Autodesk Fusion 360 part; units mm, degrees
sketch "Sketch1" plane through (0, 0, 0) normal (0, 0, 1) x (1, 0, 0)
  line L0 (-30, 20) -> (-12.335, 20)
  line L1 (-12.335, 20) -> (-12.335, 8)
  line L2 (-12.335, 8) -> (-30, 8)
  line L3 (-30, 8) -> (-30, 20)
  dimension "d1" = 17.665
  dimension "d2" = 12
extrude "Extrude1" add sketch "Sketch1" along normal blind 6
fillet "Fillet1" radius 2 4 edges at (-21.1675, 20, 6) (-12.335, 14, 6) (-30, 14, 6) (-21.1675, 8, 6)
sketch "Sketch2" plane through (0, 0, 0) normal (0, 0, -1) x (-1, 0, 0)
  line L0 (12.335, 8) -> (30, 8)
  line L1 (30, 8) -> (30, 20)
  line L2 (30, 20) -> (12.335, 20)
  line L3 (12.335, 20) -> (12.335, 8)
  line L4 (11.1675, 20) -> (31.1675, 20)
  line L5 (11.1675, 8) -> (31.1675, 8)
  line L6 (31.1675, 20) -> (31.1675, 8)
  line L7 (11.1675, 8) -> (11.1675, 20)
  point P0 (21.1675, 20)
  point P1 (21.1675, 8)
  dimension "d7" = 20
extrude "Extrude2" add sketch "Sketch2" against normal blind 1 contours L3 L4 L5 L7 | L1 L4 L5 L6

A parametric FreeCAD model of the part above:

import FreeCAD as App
import Part
import Sketcher


def edges_at(feature, points):
    """Names of the edges that pass closest to the given points."""
    edges = feature.Shape.Edges
    near = lambda p: min(range(len(edges)), key=lambda i: edges[i].distToShape(Part.Vertex(*p))[0])
    return sorted({f"Edge{near(p) + 1}" for p in points})

doc = App.newDocument("Part")
params = doc.addObject("Spreadsheet::Sheet", "Params")
for row, (alias, value) in enumerate([
    ("sketch1_height", "12 mm"),
    ("pad1_length", "6 mm"),
    ("fillet_radius", "2 mm"),
    ("sketch2_height", "12 mm"),
    ("pad2_length", "1 mm"),
], start=1):
    params.set(f"A{row}", alias)
    params.set(f"B{row}", "=" + value)
    params.setAlias(f"B{row}", alias)

body = doc.addObject("PartDesign::Body", "Body")

sketch1 = body.newObject("Sketcher::SketchObject", "Sketch")
sketch1.AttachmentSupport = (doc.getObject("XY_Plane"), [""])
sketch1.MapMode = "FlatFace"
sketch1.addGeometry(Part.LineSegment(App.Vector(-12, 20, 0), App.Vector(-30, 20, 0)), False)
sketch1.addGeometry(Part.LineSegment(App.Vector(-30, 20, 0), App.Vector(-30, 8, 0)), False)
sketch1.addGeometry(Part.LineSegment(App.Vector(-30, 8, 0), App.Vector(-12, 8, 0)), False)
sketch1.addGeometry(Part.LineSegment(App.Vector(-12, 8, 0), App.Vector(-12, 20, 0)), False)
sketch1.addConstraint(Sketcher.Constraint("Coincident", 0, 2, 1, 1))
sketch1.addConstraint(Sketcher.Constraint("Coincident", 1, 2, 2, 1))
sketch1.addConstraint(Sketcher.Constraint("Coincident", 2, 2, 3, 1))
sketch1.addConstraint(Sketcher.Constraint("Coincident", 3, 2, 0, 1))
sketch1.addConstraint(Sketcher.Constraint("Horizontal", 0))
sketch1.addConstraint(Sketcher.Constraint("Vertical", 1))
sketch1.addConstraint(Sketcher.Constraint("Horizontal", 2))
sketch1.addConstraint(Sketcher.Constraint("Vertical", 3))
sketch1.addConstraint(Sketcher.Constraint("DistanceY", 1, 2, 1, 1, 12.0))
sketch1.addConstraint(Sketcher.Constraint("DistanceX", 0, 2, 0, 1, 17.665))
sketch1.addConstraint(Sketcher.Constraint("DistanceX", 0, 2, -1, 1, 30.0))
sketch1.addConstraint(Sketcher.Constraint("DistanceY", -1, 1, 0, 2, 20.0))
sketch1.setExpression("Constraints[8]", "Params.sketch1_height")
pad1 = body.newObject("PartDesign::Pad", "Pad")
pad1.Profile = sketch1
pad1.setExpression("Length", "Params.pad1_length")
doc.recompute()

fillet = body.newObject("PartDesign::Fillet", "Fillet")
fillet.Base = (pad1, edges_at(pad1, [
    (-21.168, 20, 6),
    (-12.335, 14, 6),
    (-30, 14, 6),
    (-21.168, 8, 6),
]))
fillet.setExpression("Radius", "Params.fillet_radius")

sketch2 = body.newObject("Sketcher::SketchObject", "Sketch001")
sketch2.AttachmentSupport = (doc.getObject("XY_Plane"), [""])
sketch2.MapMode = "FlatFace"
sketch2.addGeometry(Part.LineSegment(App.Vector(-11.2, 8, 0), App.Vector(-12.3, 8, 0)), False)
sketch2.addGeometry(Part.LineSegment(App.Vector(-12.3, 8, 0), App.Vector(-12.3, 20, 0)), False)
sketch2.addGeometry(Part.LineSegment(App.Vector(-12.3, 20, 0), App.Vector(-11.2, 20, 0)), False)
sketch2.addGeometry(Part.LineSegment(App.Vector(-11.2, 20, 0), App.Vector(-11.2, 8, 0)), False)
sketch2.addGeometry(Part.LineSegment(App.Vector(-30, 20, 0), App.Vector(-30, 8, 0)), False)
sketch2.addGeometry(Part.LineSegment(App.Vector(-30, 8, 0), App.Vector(-31.2, 8, 0)), False)
sketch2.addGeometry(Part.LineSegment(App.Vector(-31.2, 8, 0), App.Vector(-31.2, 20, 0)), False)
sketch2.addGeometry(Part.LineSegment(App.Vector(-31.2, 20, 0), App.Vector(-30, 20, 0)), False)
sketch2.addConstraint(Sketcher.Constraint("Coincident", 0, 2, 1, 1))
sketch2.addConstraint(Sketcher.Constraint("Coincident", 1, 2, 2, 1))
sketch2.addConstraint(Sketcher.Constraint("Coincident", 2, 2, 3, 1))
sketch2.addConstraint(Sketcher.Constraint("Coincident", 3, 2, 0, 1))
sketch2.addConstraint(Sketcher.Constraint("Coincident", 4, 2, 5, 1))
sketch2.addConstraint(Sketcher.Constraint("Coincident", 5, 2, 6, 1))
sketch2.addConstraint(Sketcher.Constraint("Coincident", 6, 2, 7, 1))
sketch2.addConstraint(Sketcher.Constraint("Coincident", 7, 2, 4, 1))
sketch2.addConstraint(Sketcher.Constraint("Horizontal", 0))
sketch2.addConstraint(Sketcher.Constraint("Vertical", 1))
sketch2.addConstraint(Sketcher.Constraint("Horizontal", 2))
sketch2.addConstraint(Sketcher.Constraint("Vertical", 3))
sketch2.addConstraint(Sketcher.Constraint("Vertical", 4))
sketch2.addConstraint(Sketcher.Constraint("Horizontal", 5))
sketch2.addConstraint(Sketcher.Constraint("Vertical", 6))
sketch2.addConstraint(Sketcher.Constraint("Horizontal", 7))
sketch2.addConstraint(Sketcher.Constraint("Horizontal", 3, 2, 4, 2))
sketch2.addConstraint(Sketcher.Constraint("Horizontal", 2, 2, 6, 2))
sketch2.addConstraint(Sketcher.Constraint("Equal", 2, 5))
sketch2.addConstraint(Sketcher.Constraint("DistanceY", -1, 1, 1, 2, 20.0))
sketch2.addConstraint(Sketcher.Constraint("DistanceX", 5, 2, 3, 2, 20.0))
sketch2.addConstraint(Sketcher.Constraint("DistanceY", 1, 1, 1, 2, 12.0))
sketch2.addConstraint(Sketcher.Constraint("DistanceX", 4, 2, -1, 1, 30.0))
sketch2.addConstraint(Sketcher.Constraint("DistanceX", 0, 2, 0, 1, 1.1675))
sketch2.setExpression("Constraints[21]", "Params.sketch2_height")
pad2 = body.newObject("PartDesign::Pad", "Pad001")
pad2.Profile = sketch2
pad2.setExpression("Length", "Params.pad2_length")

doc.recompute()
